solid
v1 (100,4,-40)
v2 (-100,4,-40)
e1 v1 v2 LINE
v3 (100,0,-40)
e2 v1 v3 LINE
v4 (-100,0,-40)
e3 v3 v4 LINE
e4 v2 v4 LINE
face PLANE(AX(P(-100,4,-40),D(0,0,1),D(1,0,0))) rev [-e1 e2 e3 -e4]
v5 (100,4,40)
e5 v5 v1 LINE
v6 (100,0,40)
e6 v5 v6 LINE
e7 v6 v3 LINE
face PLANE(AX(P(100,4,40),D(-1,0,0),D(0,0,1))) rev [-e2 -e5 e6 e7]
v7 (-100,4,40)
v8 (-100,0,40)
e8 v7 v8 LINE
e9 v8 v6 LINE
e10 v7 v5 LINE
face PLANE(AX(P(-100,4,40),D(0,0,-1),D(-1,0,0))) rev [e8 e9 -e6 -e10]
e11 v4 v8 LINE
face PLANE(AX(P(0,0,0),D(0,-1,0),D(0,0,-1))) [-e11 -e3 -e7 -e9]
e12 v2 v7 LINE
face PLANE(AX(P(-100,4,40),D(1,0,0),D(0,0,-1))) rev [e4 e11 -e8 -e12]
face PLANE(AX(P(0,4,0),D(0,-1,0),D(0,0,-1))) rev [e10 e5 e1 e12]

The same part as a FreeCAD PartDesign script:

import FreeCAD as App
import Part
import Sketcher

V = App.Vector

doc = App.newDocument("Part")
body = doc.addObject("PartDesign::Body", "Body")

# Sketch on XZ plane
sketch1 = body.newObject("Sketcher::SketchObject", "Sketch")
sketch1.AttachmentSupport = (doc.getObject("XZ_Plane"), [""])
sketch1.MapMode = "FlatFace"
sketch1.addGeometry([
    Part.LineSegment(V(-100, -40, 0), V(-100, 40, 0)),
    Part.LineSegment(V(-100, 40, 0), V(100, 40, 0)),
    Part.LineSegment(V(100, 40, 0), V(100, -40, 0)),
    Part.LineSegment(V(100, -40, 0), V(-100, -40, 0)),
], False)
sketch1.addConstraint([
    Sketcher.Constraint("Coincident", 0, 2, 1, 1),
    Sketcher.Constraint("Coincident", 1, 2, 2, 1),
    Sketcher.Constraint("Coincident", 2, 2, 3, 1),
    Sketcher.Constraint("Coincident", 3, 2, 0, 1),
    Sketcher.Constraint("Vertical", 0),
    Sketcher.Constraint("Horizontal", 1),
    Sketcher.Constraint("Vertical", 2),
    Sketcher.Constraint("Horizontal", 3),
    Sketcher.Constraint("Symmetric", 0, 2, 2, 2, -1, 1),
    Sketcher.Constraint("DistanceX", 1, 1, 1, 2, 200.0),
    Sketcher.Constraint("DistanceY", 0, 1, 0, 2, 80.0),
])
pad1 = body.newObject("PartDesign::Pad", "Pad")
pad1.Profile = sketch1
pad1.Length = 4
pad1.Reversed = True

doc.recompute()
